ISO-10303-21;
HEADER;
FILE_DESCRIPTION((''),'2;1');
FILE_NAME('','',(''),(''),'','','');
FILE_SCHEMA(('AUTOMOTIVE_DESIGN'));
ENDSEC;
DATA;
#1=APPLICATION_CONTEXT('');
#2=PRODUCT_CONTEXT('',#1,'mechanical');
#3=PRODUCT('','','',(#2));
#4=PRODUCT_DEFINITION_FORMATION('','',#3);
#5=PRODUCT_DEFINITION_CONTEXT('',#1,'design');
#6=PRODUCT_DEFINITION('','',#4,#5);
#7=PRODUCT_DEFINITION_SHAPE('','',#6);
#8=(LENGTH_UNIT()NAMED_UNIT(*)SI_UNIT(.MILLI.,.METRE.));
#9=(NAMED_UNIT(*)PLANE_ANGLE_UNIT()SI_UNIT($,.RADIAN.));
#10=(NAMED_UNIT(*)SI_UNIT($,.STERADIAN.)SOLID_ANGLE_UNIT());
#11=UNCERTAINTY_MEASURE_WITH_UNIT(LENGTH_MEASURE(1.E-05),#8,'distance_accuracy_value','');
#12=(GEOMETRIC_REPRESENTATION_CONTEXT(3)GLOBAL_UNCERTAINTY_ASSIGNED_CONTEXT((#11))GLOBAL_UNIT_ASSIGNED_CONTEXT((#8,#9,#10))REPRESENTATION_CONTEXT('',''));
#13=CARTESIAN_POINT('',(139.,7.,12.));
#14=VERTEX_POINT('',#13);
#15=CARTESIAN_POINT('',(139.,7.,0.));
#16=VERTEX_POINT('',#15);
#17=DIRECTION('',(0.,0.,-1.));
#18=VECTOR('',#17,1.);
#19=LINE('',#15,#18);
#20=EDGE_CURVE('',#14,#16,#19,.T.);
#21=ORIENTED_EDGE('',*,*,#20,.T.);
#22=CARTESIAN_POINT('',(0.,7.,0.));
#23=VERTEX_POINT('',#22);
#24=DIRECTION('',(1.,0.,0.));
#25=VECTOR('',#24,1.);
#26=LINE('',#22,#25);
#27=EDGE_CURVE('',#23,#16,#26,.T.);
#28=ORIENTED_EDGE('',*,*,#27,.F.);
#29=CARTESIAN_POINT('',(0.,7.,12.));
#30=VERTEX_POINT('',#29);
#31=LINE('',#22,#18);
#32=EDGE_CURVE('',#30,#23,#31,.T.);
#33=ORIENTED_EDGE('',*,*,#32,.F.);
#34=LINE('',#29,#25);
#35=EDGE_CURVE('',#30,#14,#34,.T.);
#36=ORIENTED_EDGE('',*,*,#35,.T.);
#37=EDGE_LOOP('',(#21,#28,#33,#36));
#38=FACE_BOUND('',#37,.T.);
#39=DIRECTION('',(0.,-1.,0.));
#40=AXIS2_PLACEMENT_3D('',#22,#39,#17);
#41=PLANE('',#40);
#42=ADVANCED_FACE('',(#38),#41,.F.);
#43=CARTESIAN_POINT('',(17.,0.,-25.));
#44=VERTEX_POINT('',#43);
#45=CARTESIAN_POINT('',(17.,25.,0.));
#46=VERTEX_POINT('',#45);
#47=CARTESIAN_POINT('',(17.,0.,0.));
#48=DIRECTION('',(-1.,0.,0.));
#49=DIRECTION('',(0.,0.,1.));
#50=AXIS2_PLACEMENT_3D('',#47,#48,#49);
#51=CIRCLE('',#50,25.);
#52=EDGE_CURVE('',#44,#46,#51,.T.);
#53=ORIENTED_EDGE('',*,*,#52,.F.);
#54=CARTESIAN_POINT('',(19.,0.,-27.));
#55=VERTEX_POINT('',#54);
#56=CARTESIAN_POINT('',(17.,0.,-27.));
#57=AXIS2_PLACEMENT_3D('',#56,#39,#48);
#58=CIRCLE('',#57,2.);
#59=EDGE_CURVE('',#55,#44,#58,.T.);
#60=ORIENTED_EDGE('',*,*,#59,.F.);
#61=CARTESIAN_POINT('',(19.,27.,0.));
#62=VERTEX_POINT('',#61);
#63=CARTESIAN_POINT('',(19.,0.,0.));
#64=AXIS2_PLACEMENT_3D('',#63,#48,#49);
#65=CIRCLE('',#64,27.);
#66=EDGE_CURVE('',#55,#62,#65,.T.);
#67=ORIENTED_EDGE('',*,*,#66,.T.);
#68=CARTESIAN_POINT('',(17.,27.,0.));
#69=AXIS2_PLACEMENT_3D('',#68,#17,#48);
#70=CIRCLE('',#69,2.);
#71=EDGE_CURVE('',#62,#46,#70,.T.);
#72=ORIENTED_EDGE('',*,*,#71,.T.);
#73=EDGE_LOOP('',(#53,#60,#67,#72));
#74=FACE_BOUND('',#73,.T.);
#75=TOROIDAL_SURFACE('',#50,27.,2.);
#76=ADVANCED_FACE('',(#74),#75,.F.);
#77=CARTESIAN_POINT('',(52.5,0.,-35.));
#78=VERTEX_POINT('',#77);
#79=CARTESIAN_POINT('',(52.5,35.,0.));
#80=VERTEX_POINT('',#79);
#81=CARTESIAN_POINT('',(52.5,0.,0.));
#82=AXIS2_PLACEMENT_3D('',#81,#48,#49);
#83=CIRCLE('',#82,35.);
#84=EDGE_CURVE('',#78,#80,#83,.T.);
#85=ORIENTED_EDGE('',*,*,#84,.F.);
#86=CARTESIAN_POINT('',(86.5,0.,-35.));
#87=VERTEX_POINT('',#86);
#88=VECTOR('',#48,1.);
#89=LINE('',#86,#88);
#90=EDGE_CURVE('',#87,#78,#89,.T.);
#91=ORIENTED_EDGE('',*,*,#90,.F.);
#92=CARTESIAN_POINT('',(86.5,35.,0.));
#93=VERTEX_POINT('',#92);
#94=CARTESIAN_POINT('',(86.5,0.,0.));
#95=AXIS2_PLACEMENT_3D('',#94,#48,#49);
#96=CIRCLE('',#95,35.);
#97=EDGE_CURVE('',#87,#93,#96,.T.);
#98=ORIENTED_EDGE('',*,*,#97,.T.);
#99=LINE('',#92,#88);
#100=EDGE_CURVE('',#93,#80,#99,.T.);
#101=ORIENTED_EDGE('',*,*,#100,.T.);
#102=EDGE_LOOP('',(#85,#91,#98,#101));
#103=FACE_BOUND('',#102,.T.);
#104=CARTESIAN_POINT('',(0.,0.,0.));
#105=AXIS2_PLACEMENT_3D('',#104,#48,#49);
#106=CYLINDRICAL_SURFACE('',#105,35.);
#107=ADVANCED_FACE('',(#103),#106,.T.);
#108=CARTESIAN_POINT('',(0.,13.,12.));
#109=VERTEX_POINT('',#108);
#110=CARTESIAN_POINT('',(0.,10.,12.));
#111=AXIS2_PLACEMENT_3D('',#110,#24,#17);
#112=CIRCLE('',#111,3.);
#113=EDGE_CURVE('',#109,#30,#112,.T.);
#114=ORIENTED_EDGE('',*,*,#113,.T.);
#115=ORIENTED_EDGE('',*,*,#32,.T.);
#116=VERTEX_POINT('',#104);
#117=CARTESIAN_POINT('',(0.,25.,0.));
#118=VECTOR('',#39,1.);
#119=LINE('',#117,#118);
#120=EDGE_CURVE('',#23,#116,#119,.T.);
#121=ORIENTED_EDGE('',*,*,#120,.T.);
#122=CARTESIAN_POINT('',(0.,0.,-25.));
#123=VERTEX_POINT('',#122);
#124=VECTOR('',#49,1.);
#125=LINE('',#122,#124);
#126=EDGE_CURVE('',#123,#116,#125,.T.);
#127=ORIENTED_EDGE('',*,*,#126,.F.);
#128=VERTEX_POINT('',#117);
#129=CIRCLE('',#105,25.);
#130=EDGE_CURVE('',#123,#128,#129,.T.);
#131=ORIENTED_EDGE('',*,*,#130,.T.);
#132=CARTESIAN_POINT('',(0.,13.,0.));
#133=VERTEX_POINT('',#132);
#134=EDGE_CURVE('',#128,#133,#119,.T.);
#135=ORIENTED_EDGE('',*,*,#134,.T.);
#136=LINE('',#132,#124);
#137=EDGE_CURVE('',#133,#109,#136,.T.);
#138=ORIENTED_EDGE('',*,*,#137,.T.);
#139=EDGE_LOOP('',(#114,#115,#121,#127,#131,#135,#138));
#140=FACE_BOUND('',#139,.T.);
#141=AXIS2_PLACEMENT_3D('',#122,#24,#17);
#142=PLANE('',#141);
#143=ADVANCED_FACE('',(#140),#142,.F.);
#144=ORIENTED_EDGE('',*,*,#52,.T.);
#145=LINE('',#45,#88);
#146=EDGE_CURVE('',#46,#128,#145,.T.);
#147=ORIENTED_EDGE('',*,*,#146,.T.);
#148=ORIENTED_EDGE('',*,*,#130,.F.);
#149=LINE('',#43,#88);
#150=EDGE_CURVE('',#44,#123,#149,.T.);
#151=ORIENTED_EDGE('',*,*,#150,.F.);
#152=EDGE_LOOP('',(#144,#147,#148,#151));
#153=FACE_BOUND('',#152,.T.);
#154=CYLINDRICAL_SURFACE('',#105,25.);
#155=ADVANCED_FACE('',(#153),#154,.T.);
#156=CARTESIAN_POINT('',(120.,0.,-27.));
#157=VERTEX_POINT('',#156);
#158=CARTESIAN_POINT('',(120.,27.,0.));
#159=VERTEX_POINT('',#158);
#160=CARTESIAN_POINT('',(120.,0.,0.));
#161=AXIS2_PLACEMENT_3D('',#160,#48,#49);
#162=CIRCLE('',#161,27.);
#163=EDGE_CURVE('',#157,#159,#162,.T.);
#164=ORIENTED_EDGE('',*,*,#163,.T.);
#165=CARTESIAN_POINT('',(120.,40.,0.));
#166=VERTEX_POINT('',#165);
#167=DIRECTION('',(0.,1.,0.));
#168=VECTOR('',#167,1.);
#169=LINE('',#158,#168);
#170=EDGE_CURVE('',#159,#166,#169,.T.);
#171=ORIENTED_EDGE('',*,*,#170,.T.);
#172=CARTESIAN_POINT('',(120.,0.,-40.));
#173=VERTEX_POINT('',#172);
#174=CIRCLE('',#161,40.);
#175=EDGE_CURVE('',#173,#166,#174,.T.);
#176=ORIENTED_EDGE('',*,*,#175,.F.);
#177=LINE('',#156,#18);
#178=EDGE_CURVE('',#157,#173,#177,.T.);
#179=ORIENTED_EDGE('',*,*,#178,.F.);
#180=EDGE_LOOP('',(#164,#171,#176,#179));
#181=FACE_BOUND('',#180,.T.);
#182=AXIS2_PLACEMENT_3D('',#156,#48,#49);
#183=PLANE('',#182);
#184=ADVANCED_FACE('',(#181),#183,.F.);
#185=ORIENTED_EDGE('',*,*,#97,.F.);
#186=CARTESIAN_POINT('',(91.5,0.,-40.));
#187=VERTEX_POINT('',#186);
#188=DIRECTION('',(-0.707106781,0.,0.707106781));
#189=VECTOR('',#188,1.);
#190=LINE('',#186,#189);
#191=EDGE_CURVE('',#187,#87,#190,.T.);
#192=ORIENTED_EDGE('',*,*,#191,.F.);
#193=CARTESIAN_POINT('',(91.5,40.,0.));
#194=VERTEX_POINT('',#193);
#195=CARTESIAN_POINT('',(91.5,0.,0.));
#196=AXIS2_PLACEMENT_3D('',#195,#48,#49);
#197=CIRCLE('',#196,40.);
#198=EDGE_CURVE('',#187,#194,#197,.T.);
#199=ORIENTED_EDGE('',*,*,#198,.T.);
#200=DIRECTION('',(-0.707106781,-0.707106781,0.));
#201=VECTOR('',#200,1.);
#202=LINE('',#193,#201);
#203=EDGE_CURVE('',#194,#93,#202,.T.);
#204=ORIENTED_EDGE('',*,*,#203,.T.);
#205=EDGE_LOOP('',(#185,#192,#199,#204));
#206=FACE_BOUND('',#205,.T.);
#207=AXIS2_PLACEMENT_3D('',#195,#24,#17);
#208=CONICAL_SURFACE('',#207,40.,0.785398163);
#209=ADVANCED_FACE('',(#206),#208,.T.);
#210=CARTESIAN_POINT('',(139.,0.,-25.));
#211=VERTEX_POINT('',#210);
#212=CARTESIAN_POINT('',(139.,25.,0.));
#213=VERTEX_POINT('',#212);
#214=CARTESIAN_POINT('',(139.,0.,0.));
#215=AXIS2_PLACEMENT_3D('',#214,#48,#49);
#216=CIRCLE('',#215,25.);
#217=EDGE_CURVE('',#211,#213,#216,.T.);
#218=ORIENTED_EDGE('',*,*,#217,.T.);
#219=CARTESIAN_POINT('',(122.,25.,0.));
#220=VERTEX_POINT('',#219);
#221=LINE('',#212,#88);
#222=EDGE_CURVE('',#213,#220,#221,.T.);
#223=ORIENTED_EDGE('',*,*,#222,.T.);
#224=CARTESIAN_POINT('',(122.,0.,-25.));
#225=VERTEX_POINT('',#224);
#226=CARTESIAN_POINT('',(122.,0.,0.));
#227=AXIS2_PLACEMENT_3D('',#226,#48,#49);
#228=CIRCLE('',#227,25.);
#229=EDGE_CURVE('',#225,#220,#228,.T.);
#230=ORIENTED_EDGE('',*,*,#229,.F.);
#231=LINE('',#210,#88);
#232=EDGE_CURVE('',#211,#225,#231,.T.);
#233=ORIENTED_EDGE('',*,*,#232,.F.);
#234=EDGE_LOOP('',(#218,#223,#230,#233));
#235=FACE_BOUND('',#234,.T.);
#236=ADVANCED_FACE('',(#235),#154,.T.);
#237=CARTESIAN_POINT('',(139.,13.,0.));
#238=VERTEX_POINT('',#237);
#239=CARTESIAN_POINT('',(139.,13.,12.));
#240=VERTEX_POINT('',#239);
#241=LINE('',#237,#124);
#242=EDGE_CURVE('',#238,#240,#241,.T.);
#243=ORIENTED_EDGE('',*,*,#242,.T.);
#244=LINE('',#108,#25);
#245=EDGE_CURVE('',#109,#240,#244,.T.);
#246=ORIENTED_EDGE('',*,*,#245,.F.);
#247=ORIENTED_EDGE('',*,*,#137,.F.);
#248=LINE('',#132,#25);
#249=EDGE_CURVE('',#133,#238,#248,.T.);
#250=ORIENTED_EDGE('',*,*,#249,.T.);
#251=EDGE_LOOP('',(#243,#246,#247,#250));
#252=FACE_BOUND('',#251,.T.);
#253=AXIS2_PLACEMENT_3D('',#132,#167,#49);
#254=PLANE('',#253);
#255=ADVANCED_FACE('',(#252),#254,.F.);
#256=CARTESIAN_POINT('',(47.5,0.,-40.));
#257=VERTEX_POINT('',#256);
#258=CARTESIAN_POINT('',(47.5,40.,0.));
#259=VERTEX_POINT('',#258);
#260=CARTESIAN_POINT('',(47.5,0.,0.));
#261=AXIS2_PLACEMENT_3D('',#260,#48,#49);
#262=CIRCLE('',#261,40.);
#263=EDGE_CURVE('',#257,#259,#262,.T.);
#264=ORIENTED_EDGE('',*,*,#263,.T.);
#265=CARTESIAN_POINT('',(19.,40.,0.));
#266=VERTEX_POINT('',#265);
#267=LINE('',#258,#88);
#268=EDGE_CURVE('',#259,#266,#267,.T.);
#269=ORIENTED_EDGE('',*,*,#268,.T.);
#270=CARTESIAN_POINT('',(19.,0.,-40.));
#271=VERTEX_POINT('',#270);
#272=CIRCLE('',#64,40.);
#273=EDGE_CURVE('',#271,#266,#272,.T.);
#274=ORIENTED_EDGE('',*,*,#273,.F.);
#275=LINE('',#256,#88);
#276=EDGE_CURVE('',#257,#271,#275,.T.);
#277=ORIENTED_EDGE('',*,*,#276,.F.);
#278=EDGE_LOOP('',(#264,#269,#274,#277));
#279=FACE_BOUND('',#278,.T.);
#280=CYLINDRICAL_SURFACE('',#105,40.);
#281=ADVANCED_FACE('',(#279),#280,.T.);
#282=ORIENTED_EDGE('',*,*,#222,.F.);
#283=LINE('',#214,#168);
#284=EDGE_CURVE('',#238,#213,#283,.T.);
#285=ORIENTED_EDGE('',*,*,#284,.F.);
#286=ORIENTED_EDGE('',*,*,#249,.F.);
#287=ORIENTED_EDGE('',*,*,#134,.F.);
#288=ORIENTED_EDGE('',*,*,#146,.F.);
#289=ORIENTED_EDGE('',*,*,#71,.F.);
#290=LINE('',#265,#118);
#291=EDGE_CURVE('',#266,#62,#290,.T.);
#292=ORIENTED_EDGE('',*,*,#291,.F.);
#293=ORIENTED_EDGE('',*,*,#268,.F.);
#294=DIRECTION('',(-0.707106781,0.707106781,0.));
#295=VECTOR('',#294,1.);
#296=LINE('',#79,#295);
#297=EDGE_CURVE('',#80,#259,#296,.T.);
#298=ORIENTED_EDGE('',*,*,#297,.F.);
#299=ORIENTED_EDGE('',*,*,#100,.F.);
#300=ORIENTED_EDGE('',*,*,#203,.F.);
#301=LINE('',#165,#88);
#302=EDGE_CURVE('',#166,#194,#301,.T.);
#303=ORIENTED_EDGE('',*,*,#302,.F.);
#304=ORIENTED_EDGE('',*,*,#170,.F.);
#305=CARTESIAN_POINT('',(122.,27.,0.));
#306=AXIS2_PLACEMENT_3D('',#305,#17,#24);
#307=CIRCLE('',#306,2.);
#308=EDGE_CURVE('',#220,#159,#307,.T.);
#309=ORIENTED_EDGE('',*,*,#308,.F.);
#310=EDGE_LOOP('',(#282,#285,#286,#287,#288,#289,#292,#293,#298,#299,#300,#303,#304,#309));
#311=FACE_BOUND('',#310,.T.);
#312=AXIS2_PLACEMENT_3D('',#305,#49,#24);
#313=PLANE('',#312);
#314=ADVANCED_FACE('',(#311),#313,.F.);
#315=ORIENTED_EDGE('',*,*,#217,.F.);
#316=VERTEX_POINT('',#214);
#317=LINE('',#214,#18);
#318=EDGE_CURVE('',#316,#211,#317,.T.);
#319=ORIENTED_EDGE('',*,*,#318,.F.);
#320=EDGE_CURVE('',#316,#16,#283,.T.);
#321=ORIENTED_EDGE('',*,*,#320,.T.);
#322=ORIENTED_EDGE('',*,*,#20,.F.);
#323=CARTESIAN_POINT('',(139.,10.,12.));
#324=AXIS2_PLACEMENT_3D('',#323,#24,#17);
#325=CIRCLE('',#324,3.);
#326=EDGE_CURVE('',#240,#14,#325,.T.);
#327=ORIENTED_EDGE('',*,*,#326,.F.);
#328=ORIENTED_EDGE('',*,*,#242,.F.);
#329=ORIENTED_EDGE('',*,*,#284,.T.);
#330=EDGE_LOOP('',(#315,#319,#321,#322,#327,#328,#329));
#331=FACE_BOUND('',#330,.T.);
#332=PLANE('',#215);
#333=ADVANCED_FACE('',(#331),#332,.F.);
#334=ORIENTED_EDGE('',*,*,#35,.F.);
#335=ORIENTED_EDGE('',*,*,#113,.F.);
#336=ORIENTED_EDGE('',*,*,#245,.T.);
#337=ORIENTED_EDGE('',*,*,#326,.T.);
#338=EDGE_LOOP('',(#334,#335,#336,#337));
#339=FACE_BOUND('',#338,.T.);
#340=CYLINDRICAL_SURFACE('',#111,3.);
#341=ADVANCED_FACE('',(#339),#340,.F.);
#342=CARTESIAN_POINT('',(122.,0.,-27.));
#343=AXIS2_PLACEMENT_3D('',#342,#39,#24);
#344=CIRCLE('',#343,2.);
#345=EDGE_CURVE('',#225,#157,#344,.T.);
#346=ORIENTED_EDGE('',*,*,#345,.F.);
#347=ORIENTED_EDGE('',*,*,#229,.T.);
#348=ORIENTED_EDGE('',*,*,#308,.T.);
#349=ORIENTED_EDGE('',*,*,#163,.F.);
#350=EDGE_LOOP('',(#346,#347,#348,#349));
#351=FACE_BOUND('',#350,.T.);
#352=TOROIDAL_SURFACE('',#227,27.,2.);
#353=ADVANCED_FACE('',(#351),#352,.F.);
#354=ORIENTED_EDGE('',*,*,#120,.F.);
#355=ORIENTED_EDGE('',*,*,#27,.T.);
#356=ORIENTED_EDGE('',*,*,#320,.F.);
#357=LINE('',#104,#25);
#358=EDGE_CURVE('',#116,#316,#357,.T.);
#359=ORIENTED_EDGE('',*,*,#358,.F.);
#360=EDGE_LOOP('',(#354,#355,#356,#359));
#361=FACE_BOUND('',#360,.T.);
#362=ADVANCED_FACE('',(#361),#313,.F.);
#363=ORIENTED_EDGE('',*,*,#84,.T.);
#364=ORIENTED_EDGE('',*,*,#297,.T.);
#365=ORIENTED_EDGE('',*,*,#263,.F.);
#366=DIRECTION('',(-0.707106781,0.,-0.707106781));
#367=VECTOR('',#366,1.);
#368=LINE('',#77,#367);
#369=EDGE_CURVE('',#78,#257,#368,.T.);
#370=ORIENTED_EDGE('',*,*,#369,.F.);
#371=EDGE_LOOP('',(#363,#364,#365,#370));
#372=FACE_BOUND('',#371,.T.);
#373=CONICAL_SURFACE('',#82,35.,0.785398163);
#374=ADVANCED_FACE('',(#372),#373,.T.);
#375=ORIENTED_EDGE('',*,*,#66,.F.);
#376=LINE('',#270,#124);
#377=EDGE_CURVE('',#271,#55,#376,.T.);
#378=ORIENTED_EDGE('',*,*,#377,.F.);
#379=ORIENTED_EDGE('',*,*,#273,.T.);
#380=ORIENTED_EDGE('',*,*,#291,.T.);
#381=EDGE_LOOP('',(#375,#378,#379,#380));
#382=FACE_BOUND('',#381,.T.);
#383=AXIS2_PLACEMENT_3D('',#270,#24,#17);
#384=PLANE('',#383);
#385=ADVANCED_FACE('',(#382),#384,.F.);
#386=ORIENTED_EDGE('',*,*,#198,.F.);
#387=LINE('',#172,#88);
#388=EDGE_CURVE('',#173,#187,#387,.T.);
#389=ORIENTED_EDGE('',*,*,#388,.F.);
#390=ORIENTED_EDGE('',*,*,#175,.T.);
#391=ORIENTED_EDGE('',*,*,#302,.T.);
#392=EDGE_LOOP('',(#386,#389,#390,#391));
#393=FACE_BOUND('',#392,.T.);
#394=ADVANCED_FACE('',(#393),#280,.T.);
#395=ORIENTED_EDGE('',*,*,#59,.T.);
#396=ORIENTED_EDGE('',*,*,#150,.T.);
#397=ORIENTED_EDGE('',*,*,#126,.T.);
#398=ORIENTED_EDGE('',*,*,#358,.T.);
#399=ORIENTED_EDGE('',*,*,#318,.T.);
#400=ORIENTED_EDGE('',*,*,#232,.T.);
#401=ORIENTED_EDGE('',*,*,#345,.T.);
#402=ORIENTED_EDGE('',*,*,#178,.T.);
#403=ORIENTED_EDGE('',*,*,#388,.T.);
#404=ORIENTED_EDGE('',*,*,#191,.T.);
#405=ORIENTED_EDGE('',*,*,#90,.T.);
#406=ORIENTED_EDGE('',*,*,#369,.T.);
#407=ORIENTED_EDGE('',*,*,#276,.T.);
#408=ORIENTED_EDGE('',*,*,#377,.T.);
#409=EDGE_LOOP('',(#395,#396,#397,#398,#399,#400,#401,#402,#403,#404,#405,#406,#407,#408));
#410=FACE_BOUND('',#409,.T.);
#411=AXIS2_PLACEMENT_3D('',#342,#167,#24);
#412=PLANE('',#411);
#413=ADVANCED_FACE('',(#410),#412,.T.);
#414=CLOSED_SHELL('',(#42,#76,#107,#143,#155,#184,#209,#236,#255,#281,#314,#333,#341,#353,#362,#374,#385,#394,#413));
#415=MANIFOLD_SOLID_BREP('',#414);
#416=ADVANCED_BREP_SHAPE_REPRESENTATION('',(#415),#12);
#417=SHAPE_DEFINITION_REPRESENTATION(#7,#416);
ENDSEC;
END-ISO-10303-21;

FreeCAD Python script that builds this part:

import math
import FreeCAD as App
import Part
import Sketcher

V = App.Vector
Q = App.Units.Quantity

doc = App.newDocument("Part")
body = doc.addObject("PartDesign::Body", "Body")

# Sketch on XY plane
sketch1 = doc.addObject("Sketcher::SketchObject", "Sketch")
body.addObject(sketch1)
sketch1.AttachmentSupport = (doc.XY_Plane, [""])
sketch1.MapMode = "FlatFace"
sketch1.addGeometry([
    Part.LineSegment(V(0, 0, 0), V(139, 0, 0)),  # 0
    Part.LineSegment(V(139, 0, 0), V(139, 25, 0)),  # 1
    Part.LineSegment(V(139, 25, 0), V(122, 25, 0)),  # 2
    Part.ArcOfCircle(Part.Circle(V(122, 27, 0), V(0, 0, 1), 2), math.radians(-180), math.radians(-90)),  # 3
    Part.LineSegment(V(120, 27, 0), V(120, 40, 0)),  # 4
    Part.LineSegment(V(120, 40, 0), V(91.5, 40, 0)),  # 5
    Part.LineSegment(V(91.5, 40, 0), V(86.5, 35, 0)),  # 6
    Part.LineSegment(V(86.5, 35, 0), V(52.5, 35, 0)),  # 7
    Part.LineSegment(V(52.5, 35, 0), V(47.5, 40, 0)),  # 8
    Part.LineSegment(V(47.5, 40, 0), V(19, 40, 0)),  # 9
    Part.LineSegment(V(19, 40, 0), V(19, 27, 0)),  # 10
    Part.ArcOfCircle(Part.Circle(V(17, 27, 0), V(0, 0, 1), 2), math.radians(-90), math.radians(0)),  # 11
    Part.LineSegment(V(17, 25, 0), V(0, 25, 0)),  # 12
    Part.LineSegment(V(0, 25, 0), V(0, 0, 0)),  # 13
], False)
sketch1.addConstraint([
    Sketcher.Constraint("Coincident", 0, 2, 1, 1),
    Sketcher.Constraint("Coincident", 1, 2, 2, 1),
    Sketcher.Constraint("Tangent", 2, 2, 3, 2),
    Sketcher.Constraint("Tangent", 3, 1, 4, 1),
    Sketcher.Constraint("Coincident", 4, 2, 5, 1),
    Sketcher.Constraint("Coincident", 5, 2, 6, 1),
    Sketcher.Constraint("Coincident", 6, 2, 7, 1),
    Sketcher.Constraint("Coincident", 7, 2, 8, 1),
    Sketcher.Constraint("Coincident", 8, 2, 9, 1),
    Sketcher.Constraint("Coincident", 9, 2, 10, 1),
    Sketcher.Constraint("Tangent", 10, 2, 11, 2),
    Sketcher.Constraint("Tangent", 11, 1, 12, 1),
    Sketcher.Constraint("Coincident", 12, 2, 13, 1),
    Sketcher.Constraint("Coincident", 13, 2, 0, 1),
    Sketcher.Constraint("Horizontal", 0),
    Sketcher.Constraint("Vertical", 1),
    Sketcher.Constraint("Horizontal", 2),
    Sketcher.Constraint("Vertical", 4),
    Sketcher.Constraint("Horizontal", 5),
    Sketcher.Constraint("Horizontal", 7),
    Sketcher.Constraint("Horizontal", 9),
    Sketcher.Constraint("Vertical", 10),
    Sketcher.Constraint("Horizontal", 12),
    Sketcher.Constraint("Vertical", 13),
    Sketcher.Constraint("Coincident", 13, 2, -1, 1),
    Sketcher.Constraint("Equal", 3, 11),
    Sketcher.Constraint("Perpendicular", 6, 8),
    Sketcher.Constraint("Horizontal", 3, 3, 11, 3),
    Sketcher.Constraint("Horizontal", 5, 2, 8, 2),
    Sketcher.Constraint("Equal", 5, 9),
    Sketcher.Constraint("Equal", 2, 12),
    Sketcher.Constraint("Equal", 6, 8),
    Sketcher.Constraint("Radius", 3, Q("2 mm")),
    Sketcher.Constraint("DistanceX", 0, 1, 0, 2, Q("139 mm")),
    Sketcher.Constraint("DistanceX", 2, 2, 2, 1, Q("17 mm")),
    Sketcher.Constraint("DistanceX", 7, 2, 7, 1, Q("34 mm")),
    Sketcher.Constraint("DistanceY", 1, 1, 1, 2, Q("25 mm")),
    Sketcher.Constraint("DistanceY", 4, 1, 4, 2, Q("13 mm")),
    Sketcher.Constraint("DistanceX", 5, 2, 5, 1, Q("28.5 mm")),
])
revolution = doc.addObject("PartDesign::Revolution", "Revolution")
body.addObject(revolution)
revolution.Profile = sketch1
revolution.ReferenceAxis = (sketch1, ["H_Axis"])
revolution.Angle = 270

# Sketch on YZ plane
sketch2 = doc.addObject("Sketcher::SketchObject", "Sketch001")
body.addObject(sketch2)
sketch2.AttachmentSupport = (doc.YZ_Plane, [""])
sketch2.MapMode = "FlatFace"
sketch2.AttachmentOffset = App.Placement(V(0, 0, 139), App.Rotation())
sketch2.addGeometry([
    Part.LineSegment(V(7, 12, 0), V(7, 0, 0)),
    Part.LineSegment(V(7, 0, 0), V(13, 0, 0)),
    Part.LineSegment(V(13, 0, 0), V(13, 12, 0)),
    Part.ArcOfCircle(Part.Circle(V(10, 12, 0), V(0, 0, 1), 3), math.radians(0), math.radians(180)),
], False)
sketch2.addConstraint([
    Sketcher.Constraint("Coincident", 0, 2, 1, 1),
    Sketcher.Constraint("Coincident", 1, 2, 2, 1),
    Sketcher.Constraint("Tangent", 2, 2, 3, 1),
    Sketcher.Constraint("Tangent", 3, 2, 0, 1),
    Sketcher.Constraint("Vertical", 0),
    Sketcher.Constraint("Horizontal", 1),
    Sketcher.Constraint("Vertical", 2),
    Sketcher.Constraint("PointOnObject", 0, 2, -1),
    Sketcher.Constraint("Radius", 3, Q("3 mm")),
    Sketcher.Constraint("DistanceY", 0, 2, 0, 1, Q("12 mm")),
    Sketcher.Constraint("DistanceX", -1, 1, 3, 3, Q("10 mm")),
])
pocket1 = doc.addObject("PartDesign::Pocket", "Pocket")
body.addObject(pocket1)
pocket1.Profile = sketch2
pocket1.Type = "ThroughAll"

doc.recompute()
